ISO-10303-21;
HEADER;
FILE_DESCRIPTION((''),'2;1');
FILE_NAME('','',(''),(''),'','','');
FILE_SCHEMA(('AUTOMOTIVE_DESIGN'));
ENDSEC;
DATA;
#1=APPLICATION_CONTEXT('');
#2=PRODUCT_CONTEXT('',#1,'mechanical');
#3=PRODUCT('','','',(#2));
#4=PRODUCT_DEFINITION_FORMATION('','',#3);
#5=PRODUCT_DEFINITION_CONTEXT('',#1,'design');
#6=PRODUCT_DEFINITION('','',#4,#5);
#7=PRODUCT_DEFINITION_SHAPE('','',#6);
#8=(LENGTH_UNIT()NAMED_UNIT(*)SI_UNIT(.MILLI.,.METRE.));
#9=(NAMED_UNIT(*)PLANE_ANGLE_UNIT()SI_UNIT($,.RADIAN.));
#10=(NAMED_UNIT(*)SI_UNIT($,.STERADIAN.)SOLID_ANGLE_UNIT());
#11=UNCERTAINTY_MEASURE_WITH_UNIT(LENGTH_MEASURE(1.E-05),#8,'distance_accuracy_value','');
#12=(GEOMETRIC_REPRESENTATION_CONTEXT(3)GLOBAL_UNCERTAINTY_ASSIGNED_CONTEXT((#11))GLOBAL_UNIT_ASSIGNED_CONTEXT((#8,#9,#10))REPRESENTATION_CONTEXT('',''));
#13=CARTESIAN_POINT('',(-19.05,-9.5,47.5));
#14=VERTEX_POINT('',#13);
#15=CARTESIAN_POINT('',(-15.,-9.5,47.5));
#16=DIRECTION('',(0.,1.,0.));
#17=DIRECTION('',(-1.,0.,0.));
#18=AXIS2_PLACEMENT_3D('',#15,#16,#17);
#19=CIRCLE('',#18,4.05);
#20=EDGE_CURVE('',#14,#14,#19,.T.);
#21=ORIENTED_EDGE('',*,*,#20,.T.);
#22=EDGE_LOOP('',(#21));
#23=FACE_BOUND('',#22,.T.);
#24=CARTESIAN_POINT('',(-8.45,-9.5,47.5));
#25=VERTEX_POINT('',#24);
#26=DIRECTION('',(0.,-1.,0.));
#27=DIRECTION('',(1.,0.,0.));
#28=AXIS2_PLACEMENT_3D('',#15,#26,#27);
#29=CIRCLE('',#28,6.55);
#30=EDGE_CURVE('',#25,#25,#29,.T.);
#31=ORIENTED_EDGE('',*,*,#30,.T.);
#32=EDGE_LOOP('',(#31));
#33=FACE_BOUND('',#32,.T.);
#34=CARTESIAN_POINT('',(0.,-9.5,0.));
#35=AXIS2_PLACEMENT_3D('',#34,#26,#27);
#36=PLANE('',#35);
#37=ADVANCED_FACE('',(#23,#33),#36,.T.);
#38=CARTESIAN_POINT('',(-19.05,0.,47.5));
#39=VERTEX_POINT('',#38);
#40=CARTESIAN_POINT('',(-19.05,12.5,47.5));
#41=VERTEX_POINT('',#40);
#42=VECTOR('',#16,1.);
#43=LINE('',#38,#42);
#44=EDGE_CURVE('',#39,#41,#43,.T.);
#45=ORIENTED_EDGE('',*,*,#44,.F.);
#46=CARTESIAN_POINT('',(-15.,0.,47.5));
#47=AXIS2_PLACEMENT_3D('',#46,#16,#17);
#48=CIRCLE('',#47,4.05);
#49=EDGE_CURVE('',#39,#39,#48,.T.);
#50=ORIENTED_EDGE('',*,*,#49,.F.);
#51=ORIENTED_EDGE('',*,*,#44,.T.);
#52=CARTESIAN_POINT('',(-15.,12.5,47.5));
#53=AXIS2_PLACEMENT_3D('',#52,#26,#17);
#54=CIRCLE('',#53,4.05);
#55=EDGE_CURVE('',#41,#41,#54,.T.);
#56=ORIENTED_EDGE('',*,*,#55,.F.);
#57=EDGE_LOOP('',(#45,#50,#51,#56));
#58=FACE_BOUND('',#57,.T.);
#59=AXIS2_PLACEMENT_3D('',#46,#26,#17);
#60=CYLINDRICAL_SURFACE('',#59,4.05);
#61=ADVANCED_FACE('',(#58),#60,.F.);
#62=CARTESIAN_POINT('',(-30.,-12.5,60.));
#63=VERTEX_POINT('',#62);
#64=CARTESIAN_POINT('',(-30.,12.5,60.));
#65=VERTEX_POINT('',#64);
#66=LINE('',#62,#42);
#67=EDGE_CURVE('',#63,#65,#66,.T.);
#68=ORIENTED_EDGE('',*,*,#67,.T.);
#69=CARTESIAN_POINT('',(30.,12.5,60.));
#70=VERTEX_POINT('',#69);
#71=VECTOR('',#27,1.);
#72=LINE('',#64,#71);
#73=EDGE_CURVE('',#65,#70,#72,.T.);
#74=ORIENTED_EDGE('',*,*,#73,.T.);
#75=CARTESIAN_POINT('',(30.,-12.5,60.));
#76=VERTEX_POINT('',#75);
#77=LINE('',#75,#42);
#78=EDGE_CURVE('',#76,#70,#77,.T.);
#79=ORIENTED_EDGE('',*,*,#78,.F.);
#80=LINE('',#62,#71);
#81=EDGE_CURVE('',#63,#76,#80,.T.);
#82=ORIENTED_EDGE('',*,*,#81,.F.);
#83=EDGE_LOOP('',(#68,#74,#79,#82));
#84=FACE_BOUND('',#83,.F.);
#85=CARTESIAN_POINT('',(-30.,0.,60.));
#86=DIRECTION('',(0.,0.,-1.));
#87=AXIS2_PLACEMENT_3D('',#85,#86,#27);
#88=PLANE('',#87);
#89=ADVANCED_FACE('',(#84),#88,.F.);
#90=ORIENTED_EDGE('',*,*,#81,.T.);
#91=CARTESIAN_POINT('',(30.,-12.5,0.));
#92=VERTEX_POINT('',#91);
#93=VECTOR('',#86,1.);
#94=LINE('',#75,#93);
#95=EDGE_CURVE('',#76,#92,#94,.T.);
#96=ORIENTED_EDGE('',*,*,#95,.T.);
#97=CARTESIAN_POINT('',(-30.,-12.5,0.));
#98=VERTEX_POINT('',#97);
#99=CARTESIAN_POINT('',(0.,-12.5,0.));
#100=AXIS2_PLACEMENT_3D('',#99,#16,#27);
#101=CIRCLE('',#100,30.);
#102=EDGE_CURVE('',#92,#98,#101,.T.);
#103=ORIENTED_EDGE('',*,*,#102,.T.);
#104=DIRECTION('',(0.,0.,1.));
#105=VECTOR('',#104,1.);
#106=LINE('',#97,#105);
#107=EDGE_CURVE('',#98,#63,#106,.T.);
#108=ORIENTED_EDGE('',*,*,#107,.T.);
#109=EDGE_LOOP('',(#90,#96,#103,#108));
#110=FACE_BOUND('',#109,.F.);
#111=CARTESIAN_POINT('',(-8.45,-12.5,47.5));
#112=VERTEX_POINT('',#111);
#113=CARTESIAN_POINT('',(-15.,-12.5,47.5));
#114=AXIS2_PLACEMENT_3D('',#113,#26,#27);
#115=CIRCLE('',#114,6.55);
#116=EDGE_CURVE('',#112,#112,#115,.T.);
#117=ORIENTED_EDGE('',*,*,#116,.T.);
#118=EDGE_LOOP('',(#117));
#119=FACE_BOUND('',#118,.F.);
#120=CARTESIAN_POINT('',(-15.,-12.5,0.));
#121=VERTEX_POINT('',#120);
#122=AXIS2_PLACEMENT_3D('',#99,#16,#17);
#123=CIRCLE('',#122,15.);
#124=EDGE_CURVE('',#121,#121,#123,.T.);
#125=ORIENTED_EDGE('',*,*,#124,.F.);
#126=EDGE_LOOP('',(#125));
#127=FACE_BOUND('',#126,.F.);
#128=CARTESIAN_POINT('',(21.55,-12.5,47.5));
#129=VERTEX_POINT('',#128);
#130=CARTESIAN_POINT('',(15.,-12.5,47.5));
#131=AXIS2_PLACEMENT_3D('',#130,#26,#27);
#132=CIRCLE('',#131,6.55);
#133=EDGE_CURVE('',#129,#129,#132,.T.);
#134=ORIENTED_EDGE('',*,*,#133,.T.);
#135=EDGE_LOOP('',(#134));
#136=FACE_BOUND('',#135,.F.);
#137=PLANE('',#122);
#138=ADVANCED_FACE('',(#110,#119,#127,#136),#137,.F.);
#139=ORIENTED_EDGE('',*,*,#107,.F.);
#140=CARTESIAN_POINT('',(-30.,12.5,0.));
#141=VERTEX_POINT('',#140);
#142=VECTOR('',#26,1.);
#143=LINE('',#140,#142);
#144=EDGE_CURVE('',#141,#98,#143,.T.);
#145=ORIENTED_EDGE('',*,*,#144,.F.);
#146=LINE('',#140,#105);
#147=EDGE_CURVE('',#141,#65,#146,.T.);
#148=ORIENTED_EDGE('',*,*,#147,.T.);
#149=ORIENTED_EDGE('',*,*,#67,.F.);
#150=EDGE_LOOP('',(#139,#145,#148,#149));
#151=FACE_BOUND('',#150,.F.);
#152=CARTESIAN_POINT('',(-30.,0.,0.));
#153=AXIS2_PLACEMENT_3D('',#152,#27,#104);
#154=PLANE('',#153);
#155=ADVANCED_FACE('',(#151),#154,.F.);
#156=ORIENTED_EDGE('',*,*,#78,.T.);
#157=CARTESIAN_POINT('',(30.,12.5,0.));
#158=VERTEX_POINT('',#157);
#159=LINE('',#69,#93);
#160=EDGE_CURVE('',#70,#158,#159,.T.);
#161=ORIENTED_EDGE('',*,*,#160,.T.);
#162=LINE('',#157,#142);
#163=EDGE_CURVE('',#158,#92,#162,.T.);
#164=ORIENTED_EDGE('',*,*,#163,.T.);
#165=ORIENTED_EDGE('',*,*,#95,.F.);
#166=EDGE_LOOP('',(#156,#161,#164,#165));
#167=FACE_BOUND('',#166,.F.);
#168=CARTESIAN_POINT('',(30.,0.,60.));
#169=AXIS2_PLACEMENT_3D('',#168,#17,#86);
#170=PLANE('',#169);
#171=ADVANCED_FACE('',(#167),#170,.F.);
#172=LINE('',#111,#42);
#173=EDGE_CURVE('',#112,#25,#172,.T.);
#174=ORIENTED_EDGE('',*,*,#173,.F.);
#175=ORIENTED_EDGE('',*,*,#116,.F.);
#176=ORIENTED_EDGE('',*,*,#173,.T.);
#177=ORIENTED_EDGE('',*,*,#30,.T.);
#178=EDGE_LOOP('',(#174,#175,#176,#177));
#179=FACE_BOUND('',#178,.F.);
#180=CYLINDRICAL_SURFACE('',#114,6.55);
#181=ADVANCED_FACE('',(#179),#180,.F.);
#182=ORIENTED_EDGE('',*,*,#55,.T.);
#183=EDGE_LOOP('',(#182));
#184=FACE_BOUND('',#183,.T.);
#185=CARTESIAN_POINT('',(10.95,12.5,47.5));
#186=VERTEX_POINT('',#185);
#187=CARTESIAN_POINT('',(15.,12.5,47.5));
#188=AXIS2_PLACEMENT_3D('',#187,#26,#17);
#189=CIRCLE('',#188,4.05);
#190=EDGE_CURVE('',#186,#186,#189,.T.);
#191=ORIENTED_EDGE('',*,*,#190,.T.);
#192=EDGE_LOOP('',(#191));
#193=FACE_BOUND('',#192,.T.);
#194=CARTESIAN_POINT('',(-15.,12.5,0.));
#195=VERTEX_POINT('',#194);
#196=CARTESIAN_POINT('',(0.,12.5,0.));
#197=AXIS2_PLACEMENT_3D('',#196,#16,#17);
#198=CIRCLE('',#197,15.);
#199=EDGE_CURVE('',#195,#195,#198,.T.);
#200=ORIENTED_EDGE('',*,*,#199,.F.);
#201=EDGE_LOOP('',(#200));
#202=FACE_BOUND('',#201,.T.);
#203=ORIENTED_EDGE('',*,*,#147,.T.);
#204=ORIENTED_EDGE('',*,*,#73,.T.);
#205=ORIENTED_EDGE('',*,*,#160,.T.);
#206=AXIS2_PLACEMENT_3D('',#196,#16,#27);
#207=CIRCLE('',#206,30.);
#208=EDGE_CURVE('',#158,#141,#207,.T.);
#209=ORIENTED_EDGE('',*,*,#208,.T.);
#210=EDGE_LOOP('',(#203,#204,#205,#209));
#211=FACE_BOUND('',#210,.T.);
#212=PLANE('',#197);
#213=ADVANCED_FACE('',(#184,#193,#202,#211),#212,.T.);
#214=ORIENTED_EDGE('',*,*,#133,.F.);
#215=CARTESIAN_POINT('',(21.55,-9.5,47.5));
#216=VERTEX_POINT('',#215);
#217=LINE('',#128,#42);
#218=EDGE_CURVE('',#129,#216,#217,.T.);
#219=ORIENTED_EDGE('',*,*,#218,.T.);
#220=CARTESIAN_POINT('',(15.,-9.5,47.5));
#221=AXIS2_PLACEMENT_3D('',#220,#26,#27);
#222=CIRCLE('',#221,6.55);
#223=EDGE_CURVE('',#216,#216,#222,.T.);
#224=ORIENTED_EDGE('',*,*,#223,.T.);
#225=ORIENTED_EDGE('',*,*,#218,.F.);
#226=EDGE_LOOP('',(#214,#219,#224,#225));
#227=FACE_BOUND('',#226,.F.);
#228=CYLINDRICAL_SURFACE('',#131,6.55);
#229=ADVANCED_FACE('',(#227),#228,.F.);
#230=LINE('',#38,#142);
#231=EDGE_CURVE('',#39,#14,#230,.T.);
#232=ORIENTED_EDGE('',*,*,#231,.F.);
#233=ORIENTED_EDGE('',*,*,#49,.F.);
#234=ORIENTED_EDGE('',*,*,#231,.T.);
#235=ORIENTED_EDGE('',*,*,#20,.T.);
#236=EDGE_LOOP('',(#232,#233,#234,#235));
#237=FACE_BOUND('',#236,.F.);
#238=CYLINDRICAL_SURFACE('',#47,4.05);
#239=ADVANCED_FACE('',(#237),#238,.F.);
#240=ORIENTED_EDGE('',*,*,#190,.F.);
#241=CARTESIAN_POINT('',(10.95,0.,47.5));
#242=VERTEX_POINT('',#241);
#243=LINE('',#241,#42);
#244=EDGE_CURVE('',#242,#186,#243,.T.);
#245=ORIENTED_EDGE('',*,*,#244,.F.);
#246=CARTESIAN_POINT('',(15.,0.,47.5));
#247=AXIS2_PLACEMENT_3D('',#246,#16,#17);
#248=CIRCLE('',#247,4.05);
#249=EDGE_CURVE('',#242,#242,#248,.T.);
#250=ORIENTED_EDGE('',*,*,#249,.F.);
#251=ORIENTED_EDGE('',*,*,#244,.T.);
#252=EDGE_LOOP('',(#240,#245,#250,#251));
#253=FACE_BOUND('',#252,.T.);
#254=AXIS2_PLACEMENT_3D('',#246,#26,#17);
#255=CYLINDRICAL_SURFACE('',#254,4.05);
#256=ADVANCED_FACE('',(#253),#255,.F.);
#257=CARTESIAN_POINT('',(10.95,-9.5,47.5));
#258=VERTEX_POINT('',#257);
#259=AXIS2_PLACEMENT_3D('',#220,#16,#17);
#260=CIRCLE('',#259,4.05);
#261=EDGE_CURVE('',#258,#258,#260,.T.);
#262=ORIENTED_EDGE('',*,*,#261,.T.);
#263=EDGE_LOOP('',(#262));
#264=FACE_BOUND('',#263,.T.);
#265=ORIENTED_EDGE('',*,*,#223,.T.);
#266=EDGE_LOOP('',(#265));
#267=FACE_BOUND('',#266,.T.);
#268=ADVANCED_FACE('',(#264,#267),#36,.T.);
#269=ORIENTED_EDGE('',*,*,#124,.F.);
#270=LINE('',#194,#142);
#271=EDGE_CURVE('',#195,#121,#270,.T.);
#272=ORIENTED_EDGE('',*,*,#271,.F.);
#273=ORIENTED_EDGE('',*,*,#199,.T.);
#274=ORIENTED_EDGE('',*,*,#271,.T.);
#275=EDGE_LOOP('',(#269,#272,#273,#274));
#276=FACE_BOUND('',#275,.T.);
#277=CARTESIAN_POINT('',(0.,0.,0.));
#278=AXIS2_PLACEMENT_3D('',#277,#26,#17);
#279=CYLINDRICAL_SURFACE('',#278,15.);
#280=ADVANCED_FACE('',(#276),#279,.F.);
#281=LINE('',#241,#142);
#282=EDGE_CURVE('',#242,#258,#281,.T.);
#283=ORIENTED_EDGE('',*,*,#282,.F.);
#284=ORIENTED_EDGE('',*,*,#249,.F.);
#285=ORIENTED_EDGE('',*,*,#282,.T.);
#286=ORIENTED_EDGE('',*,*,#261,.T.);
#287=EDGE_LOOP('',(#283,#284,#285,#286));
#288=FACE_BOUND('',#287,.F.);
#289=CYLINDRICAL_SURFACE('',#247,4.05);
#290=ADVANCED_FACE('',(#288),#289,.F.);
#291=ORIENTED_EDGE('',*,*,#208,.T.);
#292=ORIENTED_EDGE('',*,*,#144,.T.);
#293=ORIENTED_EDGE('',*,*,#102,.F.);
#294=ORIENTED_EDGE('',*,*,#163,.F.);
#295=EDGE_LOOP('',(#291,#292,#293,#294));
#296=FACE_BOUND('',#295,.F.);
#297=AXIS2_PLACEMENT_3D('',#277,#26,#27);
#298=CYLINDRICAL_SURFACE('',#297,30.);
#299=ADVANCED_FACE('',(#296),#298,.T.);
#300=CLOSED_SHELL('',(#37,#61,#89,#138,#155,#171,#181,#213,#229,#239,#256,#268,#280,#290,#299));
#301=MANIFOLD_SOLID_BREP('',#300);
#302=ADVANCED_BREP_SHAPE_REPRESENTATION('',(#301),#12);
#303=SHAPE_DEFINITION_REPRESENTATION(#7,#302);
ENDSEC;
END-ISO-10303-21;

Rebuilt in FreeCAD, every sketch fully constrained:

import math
import FreeCAD as App
import Part
import Sketcher
from FreeCAD import Vector
Q = App.Units.Quantity

doc = App.newDocument("Part")
body = doc.addObject("PartDesign::Body", "Body")

sketch1 = doc.addObject("Sketcher::SketchObject", "Sketch")
body.addObject(sketch1)
sketch1.AttachmentSupport = (doc.XZ_Plane, [""])
sketch1.MapMode = "FlatFace"
sketch1.addGeometry(Part.LineSegment(Vector(-30, 0, 0), Vector(-30, 60, 0)), False)
sketch1.addGeometry(Part.LineSegment(Vector(-30, 60, 0), Vector(30, 60, 0)), False)
sketch1.addGeometry(Part.LineSegment(Vector(30, 60, 0), Vector(30, 0, 0)), False)
sketch1.addGeometry(Part.ArcOfCircle(Part.Circle(Vector(0, 0, 0), Vector(0, 0, 1), 30), math.radians(180), math.radians(360)), False)
sketch1.addGeometry(Part.Circle(Vector(0, 0, 0), Vector(0, 0, 1), 15), False)
sketch1.addConstraint(Sketcher.Constraint("Coincident", 0, 2, 1, 1))
sketch1.addConstraint(Sketcher.Constraint("Coincident", 1, 2, 2, 1))
sketch1.addConstraint(Sketcher.Constraint("Tangent", 2, 2, 3, 2))
sketch1.addConstraint(Sketcher.Constraint("Tangent", 3, 1, 0, 1))
sketch1.addConstraint(Sketcher.Constraint("Vertical", 0))
sketch1.addConstraint(Sketcher.Constraint("Horizontal", 1))
sketch1.addConstraint(Sketcher.Constraint("Vertical", 2))
sketch1.addConstraint(Sketcher.Constraint("Coincident", 3, 3, -1, 1))
sketch1.addConstraint(Sketcher.Constraint("Coincident", 4, 3, -1, 1))
sketch1.addConstraint(Sketcher.Constraint("Equal", 1, 0))
sketch1.addConstraint(Sketcher.Constraint("Diameter", 4, Q("30 mm")))
sketch1.addConstraint(Sketcher.Constraint("Radius", 3, Q("30 mm")))
pad1 = doc.addObject("PartDesign::Pad", "Pad")
body.addObject(pad1)
pad1.Profile = sketch1
pad1.Length = 25
pad1.Midplane = True

sketch2 = doc.addObject("Sketcher::SketchObject", "Sketch001")
body.addObject(sketch2)
sketch2.AttachmentSupport = (doc.XZ_Plane, [""])
sketch2.MapMode = "FlatFace"
sketch2.addGeometry(Part.Circle(Vector(-15, 47.5, 0), Vector(0, 0, 1), 4), False)
sketch2.addGeometry(Part.Circle(Vector(15, 47.5, 0), Vector(0, 0, 1), 4), False)
sketch2.addConstraint(Sketcher.Constraint("Equal", 0, 1))
sketch2.addConstraint(Sketcher.Constraint("Symmetric", 0, 3, 1, 3, -2))
sketch2.addConstraint(Sketcher.Constraint("Diameter", 0, Q("8.1 mm")))
sketch2.addConstraint(Sketcher.Constraint("DistanceX", 0, 3, 1, 3, Q("30 mm")))
sketch2.addConstraint(Sketcher.Constraint("DistanceY", -1, 1, 0, 3, Q("47.5 mm")))
pocket1 = doc.addObject("PartDesign::Pocket", "Pocket")
body.addObject(pocket1)
pocket1.Profile = sketch2
pocket1.Type = "ThroughAll"
pocket1.Midplane = True

sketch3 = doc.addObject("Sketcher::SketchObject", "Sketch002")
body.addObject(sketch3)
sketch3.AttachmentSupport = (doc.XZ_Plane, [""])
sketch3.MapMode = "FlatFace"
sketch3.AttachmentOffset = App.Placement(Vector(0, 0, 12.5), App.Rotation())
sketch3.addGeometry(Part.Circle(Vector(-15, 48, 0), Vector(0, 0, 1), 7), False)
sketch3.addGeometry(Part.Circle(Vector(15, 48, 0), Vector(0, 0, 1), 7), False)
sketch3.addConstraint(Sketcher.Constraint("Equal", 0, 1))
sketch3.addConstraint(Sketcher.Constraint("Symmetric", 0, 3, 1, 3, -2))
sketch3.addConstraint(Sketcher.Constraint("Diameter", 0, Q("13.1 mm")))
sketch3.addConstraint(Sketcher.Constraint("DistanceX", 0, 3, -1, 1, Q("15 mm")))
sketch3.addConstraint(Sketcher.Constraint("DistanceY", -1, 1, 0, 3, Q("47.5 mm")))
pocket2 = doc.addObject("PartDesign::Pocket", "Pocket001")
body.addObject(pocket2)
pocket2.Profile = sketch3
pocket2.Length = 3

doc.recompute()
